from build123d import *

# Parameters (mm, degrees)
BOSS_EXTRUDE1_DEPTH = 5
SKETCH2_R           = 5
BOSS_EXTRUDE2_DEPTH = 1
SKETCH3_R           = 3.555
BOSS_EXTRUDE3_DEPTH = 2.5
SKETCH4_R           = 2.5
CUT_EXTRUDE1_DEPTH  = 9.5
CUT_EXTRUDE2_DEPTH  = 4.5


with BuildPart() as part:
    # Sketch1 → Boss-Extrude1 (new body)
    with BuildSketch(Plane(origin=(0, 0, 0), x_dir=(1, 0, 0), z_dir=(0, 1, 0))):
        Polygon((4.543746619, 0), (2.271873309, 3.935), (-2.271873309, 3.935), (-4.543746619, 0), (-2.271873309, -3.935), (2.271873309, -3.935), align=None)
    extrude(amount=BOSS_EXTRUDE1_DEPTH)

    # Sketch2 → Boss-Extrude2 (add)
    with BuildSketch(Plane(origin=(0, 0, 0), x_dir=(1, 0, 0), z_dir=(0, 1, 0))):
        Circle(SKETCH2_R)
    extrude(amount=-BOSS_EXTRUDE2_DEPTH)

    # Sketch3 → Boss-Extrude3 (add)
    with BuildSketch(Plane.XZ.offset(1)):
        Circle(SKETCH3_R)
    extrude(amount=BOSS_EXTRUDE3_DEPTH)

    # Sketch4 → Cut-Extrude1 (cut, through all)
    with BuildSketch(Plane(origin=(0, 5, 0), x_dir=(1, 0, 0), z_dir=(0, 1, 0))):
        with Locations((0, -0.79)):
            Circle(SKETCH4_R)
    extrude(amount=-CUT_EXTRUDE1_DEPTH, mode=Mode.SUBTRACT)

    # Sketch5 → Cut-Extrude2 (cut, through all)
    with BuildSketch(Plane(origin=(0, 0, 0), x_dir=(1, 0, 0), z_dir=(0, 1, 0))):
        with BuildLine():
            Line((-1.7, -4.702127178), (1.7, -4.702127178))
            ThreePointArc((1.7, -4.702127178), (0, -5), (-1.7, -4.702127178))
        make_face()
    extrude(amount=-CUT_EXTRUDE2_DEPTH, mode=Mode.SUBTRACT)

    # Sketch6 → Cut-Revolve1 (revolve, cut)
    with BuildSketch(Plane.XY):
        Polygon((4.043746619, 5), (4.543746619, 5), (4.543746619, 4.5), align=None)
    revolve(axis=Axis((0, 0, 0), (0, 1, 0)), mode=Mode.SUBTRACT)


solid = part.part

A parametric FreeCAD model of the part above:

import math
import FreeCAD as App
import Part
import Sketcher

V = App.Vector
Q = App.Units.Quantity


def add_polygon(sketch, points):
    """Adds a closed chain of lines whose ends are joined by coincident constraints."""
    first, n = sketch.GeometryCount, len(points)
    for a, b in zip(points, points[1:] + points[:1]):
        sketch.addGeometry(Part.LineSegment(App.Vector(*a, 0), App.Vector(*b, 0)), False)
    for i in range(n):
        sketch.addConstraint(Sketcher.Constraint("Coincident", first + i, 2, first + (i + 1) % n, 1))

doc = App.newDocument("Part")
body = doc.addObject("PartDesign::Body", "Body")

# Sketch on XZ plane
sketch1 = body.newObject("Sketcher::SketchObject", "Sketch")
sketch1.AttachmentSupport = (doc.getObject("XZ_Plane"), [""])
sketch1.MapMode = "FlatFace"
add_polygon(sketch1, [(4.5, 0), (2.3, -3.9), (-2.3, -3.9), (-4.5, 0), (-2.3, 3.9), (2.3, 3.9)])  # lines 0-5
sketch1.addConstraint([
    Sketcher.Constraint("Horizontal", 1),
    Sketcher.Constraint("Horizontal", 4),
    Sketcher.Constraint("Symmetric", 0, 2, 3, 2, -1, 1),
    Sketcher.Constraint("Symmetric", 2, 2, 5, 2, -1, 1),
    Sketcher.Constraint("PointOnObject", 2, 2, -1),
    Sketcher.Constraint("Parallel", 2, 5),
    Sketcher.Constraint("Vertical", 1, 2, 3, 2),
    Sketcher.Constraint("Angle", 0, Q("-120 deg")),
    Sketcher.Constraint("DistanceY", 1, 2, 3, 2, 7.87),
    Sketcher.Constraint("DistanceX", 1, 2, 1, 1, 4.543747),
])
pad1 = body.newObject("PartDesign::Pad", "Pad")
pad1.Profile = sketch1
pad1.Length = 5
pad1.Reversed = True

# Sketch on XZ plane
sketch2 = body.newObject("Sketcher::SketchObject", "Sketch001")
sketch2.AttachmentSupport = (doc.getObject("XZ_Plane"), [""])
sketch2.MapMode = "FlatFace"
sketch2.addGeometry(Part.Circle(V(0, 0, 0), V(0, 0, 1), 5), False)
sketch2.addConstraint([
    Sketcher.Constraint("Coincident", 0, 3, -1, 1),
    Sketcher.Constraint("Diameter", 0, 10.0),
])
pad2 = body.newObject("PartDesign::Pad", "Pad001")
pad2.Profile = sketch2
pad2.Length = 1

# Sketch on XZ plane
sketch3 = body.newObject("Sketcher::SketchObject", "Sketch002")
sketch3.AttachmentSupport = (doc.getObject("XZ_Plane"), [""])
sketch3.MapMode = "FlatFace"
sketch3.AttachmentOffset = App.Placement(V(0, 0, 1), App.Rotation())
sketch3.addGeometry(Part.Circle(V(0, 0, 0), V(0, 0, 1), 3.6), False)
sketch3.addConstraint([
    Sketcher.Constraint("Coincident", 0, 3, -1, 1),
    Sketcher.Constraint("Diameter", 0, 7.11),
])
pad3 = body.newObject("PartDesign::Pad", "Pad002")
pad3.Profile = sketch3
pad3.Length = 2.5

# Sketch on XZ plane
sketch4 = body.newObject("Sketcher::SketchObject", "Sketch003")
sketch4.AttachmentSupport = (doc.getObject("XZ_Plane"), [""])
sketch4.MapMode = "FlatFace"
sketch4.AttachmentOffset = App.Placement(V(0, 0, -5), App.Rotation())
sketch4.addGeometry(Part.Circle(V(0, 0.8, 0), V(0, 0, 1), 2.5), False)
sketch4.addConstraint([
    Sketcher.Constraint("PointOnObject", 0, 3, -2),
    Sketcher.Constraint("Diameter", 0, 5.0),
    Sketcher.Constraint("DistanceY", -1, 1, 0, 3, 0.79),
])
pocket1 = body.newObject("PartDesign::Pocket", "Pocket")
pocket1.Profile = sketch4
pocket1.Type = "ThroughAll"
pocket1.Reversed = True

# Sketch on XZ plane
sketch5 = body.newObject("Sketcher::SketchObject", "Sketch004")
sketch5.AttachmentSupport = (doc.getObject("XZ_Plane"), [""])
sketch5.MapMode = "FlatFace"
sketch5.addGeometry([
    Part.LineSegment(V(1.7, 4.7, 0), V(-1.7, 4.7, 0)),
    Part.ArcOfCircle(Part.Circle(V(0, 0, 0), V(0, 0, 1), 5), math.radians(70), math.radians(110)),
], False)
sketch5.addConstraint([
    Sketcher.Constraint("Coincident", 0, 1, 1, 1),
    Sketcher.Constraint("Coincident", 1, 2, 0, 2),
    Sketcher.Constraint("Horizontal", 0),
    Sketcher.Constraint("Coincident", 1, 3, -1, 1),
    Sketcher.Constraint("Radius", 1, 5.0),
    Sketcher.Constraint("DistanceX", 0, 2, 0, 1, 3.4),
])
pocket2 = body.newObject("PartDesign::Pocket", "Pocket001")
pocket2.Profile = sketch5
pocket2.Type = "ThroughAll"
pocket2.Reversed = True

# Sketch on XY plane
sketch6 = body.newObject("Sketcher::SketchObject", "Sketch005")
sketch6.AttachmentSupport = (doc.getObject("XY_Plane"), [""])
sketch6.MapMode = "FlatFace"
add_polygon(sketch6, [(4.5, 5), (4, 5), (4.5, 4.5)])  # lines 0-2
sketch6.addConstraint([
    Sketcher.Constraint("Horizontal", 0),
    Sketcher.Constraint("Vertical", 2),
    Sketcher.Constraint("Equal", 0, 2),
    Sketcher.Constraint("DistanceX", 0, 2, 0, 1, 0.5),
    Sketcher.Constraint("DistanceY", -1, 1, 0, 2, 5.0),
    Sketcher.Constraint("DistanceX", -1, 1, 0, 2, 4.043747),
])
groove = body.newObject("PartDesign::Groove", "Groove")
groove.Profile = sketch6
groove.ReferenceAxis = (sketch6, ["V_Axis"])
groove.Angle = 360

doc.recompute()
